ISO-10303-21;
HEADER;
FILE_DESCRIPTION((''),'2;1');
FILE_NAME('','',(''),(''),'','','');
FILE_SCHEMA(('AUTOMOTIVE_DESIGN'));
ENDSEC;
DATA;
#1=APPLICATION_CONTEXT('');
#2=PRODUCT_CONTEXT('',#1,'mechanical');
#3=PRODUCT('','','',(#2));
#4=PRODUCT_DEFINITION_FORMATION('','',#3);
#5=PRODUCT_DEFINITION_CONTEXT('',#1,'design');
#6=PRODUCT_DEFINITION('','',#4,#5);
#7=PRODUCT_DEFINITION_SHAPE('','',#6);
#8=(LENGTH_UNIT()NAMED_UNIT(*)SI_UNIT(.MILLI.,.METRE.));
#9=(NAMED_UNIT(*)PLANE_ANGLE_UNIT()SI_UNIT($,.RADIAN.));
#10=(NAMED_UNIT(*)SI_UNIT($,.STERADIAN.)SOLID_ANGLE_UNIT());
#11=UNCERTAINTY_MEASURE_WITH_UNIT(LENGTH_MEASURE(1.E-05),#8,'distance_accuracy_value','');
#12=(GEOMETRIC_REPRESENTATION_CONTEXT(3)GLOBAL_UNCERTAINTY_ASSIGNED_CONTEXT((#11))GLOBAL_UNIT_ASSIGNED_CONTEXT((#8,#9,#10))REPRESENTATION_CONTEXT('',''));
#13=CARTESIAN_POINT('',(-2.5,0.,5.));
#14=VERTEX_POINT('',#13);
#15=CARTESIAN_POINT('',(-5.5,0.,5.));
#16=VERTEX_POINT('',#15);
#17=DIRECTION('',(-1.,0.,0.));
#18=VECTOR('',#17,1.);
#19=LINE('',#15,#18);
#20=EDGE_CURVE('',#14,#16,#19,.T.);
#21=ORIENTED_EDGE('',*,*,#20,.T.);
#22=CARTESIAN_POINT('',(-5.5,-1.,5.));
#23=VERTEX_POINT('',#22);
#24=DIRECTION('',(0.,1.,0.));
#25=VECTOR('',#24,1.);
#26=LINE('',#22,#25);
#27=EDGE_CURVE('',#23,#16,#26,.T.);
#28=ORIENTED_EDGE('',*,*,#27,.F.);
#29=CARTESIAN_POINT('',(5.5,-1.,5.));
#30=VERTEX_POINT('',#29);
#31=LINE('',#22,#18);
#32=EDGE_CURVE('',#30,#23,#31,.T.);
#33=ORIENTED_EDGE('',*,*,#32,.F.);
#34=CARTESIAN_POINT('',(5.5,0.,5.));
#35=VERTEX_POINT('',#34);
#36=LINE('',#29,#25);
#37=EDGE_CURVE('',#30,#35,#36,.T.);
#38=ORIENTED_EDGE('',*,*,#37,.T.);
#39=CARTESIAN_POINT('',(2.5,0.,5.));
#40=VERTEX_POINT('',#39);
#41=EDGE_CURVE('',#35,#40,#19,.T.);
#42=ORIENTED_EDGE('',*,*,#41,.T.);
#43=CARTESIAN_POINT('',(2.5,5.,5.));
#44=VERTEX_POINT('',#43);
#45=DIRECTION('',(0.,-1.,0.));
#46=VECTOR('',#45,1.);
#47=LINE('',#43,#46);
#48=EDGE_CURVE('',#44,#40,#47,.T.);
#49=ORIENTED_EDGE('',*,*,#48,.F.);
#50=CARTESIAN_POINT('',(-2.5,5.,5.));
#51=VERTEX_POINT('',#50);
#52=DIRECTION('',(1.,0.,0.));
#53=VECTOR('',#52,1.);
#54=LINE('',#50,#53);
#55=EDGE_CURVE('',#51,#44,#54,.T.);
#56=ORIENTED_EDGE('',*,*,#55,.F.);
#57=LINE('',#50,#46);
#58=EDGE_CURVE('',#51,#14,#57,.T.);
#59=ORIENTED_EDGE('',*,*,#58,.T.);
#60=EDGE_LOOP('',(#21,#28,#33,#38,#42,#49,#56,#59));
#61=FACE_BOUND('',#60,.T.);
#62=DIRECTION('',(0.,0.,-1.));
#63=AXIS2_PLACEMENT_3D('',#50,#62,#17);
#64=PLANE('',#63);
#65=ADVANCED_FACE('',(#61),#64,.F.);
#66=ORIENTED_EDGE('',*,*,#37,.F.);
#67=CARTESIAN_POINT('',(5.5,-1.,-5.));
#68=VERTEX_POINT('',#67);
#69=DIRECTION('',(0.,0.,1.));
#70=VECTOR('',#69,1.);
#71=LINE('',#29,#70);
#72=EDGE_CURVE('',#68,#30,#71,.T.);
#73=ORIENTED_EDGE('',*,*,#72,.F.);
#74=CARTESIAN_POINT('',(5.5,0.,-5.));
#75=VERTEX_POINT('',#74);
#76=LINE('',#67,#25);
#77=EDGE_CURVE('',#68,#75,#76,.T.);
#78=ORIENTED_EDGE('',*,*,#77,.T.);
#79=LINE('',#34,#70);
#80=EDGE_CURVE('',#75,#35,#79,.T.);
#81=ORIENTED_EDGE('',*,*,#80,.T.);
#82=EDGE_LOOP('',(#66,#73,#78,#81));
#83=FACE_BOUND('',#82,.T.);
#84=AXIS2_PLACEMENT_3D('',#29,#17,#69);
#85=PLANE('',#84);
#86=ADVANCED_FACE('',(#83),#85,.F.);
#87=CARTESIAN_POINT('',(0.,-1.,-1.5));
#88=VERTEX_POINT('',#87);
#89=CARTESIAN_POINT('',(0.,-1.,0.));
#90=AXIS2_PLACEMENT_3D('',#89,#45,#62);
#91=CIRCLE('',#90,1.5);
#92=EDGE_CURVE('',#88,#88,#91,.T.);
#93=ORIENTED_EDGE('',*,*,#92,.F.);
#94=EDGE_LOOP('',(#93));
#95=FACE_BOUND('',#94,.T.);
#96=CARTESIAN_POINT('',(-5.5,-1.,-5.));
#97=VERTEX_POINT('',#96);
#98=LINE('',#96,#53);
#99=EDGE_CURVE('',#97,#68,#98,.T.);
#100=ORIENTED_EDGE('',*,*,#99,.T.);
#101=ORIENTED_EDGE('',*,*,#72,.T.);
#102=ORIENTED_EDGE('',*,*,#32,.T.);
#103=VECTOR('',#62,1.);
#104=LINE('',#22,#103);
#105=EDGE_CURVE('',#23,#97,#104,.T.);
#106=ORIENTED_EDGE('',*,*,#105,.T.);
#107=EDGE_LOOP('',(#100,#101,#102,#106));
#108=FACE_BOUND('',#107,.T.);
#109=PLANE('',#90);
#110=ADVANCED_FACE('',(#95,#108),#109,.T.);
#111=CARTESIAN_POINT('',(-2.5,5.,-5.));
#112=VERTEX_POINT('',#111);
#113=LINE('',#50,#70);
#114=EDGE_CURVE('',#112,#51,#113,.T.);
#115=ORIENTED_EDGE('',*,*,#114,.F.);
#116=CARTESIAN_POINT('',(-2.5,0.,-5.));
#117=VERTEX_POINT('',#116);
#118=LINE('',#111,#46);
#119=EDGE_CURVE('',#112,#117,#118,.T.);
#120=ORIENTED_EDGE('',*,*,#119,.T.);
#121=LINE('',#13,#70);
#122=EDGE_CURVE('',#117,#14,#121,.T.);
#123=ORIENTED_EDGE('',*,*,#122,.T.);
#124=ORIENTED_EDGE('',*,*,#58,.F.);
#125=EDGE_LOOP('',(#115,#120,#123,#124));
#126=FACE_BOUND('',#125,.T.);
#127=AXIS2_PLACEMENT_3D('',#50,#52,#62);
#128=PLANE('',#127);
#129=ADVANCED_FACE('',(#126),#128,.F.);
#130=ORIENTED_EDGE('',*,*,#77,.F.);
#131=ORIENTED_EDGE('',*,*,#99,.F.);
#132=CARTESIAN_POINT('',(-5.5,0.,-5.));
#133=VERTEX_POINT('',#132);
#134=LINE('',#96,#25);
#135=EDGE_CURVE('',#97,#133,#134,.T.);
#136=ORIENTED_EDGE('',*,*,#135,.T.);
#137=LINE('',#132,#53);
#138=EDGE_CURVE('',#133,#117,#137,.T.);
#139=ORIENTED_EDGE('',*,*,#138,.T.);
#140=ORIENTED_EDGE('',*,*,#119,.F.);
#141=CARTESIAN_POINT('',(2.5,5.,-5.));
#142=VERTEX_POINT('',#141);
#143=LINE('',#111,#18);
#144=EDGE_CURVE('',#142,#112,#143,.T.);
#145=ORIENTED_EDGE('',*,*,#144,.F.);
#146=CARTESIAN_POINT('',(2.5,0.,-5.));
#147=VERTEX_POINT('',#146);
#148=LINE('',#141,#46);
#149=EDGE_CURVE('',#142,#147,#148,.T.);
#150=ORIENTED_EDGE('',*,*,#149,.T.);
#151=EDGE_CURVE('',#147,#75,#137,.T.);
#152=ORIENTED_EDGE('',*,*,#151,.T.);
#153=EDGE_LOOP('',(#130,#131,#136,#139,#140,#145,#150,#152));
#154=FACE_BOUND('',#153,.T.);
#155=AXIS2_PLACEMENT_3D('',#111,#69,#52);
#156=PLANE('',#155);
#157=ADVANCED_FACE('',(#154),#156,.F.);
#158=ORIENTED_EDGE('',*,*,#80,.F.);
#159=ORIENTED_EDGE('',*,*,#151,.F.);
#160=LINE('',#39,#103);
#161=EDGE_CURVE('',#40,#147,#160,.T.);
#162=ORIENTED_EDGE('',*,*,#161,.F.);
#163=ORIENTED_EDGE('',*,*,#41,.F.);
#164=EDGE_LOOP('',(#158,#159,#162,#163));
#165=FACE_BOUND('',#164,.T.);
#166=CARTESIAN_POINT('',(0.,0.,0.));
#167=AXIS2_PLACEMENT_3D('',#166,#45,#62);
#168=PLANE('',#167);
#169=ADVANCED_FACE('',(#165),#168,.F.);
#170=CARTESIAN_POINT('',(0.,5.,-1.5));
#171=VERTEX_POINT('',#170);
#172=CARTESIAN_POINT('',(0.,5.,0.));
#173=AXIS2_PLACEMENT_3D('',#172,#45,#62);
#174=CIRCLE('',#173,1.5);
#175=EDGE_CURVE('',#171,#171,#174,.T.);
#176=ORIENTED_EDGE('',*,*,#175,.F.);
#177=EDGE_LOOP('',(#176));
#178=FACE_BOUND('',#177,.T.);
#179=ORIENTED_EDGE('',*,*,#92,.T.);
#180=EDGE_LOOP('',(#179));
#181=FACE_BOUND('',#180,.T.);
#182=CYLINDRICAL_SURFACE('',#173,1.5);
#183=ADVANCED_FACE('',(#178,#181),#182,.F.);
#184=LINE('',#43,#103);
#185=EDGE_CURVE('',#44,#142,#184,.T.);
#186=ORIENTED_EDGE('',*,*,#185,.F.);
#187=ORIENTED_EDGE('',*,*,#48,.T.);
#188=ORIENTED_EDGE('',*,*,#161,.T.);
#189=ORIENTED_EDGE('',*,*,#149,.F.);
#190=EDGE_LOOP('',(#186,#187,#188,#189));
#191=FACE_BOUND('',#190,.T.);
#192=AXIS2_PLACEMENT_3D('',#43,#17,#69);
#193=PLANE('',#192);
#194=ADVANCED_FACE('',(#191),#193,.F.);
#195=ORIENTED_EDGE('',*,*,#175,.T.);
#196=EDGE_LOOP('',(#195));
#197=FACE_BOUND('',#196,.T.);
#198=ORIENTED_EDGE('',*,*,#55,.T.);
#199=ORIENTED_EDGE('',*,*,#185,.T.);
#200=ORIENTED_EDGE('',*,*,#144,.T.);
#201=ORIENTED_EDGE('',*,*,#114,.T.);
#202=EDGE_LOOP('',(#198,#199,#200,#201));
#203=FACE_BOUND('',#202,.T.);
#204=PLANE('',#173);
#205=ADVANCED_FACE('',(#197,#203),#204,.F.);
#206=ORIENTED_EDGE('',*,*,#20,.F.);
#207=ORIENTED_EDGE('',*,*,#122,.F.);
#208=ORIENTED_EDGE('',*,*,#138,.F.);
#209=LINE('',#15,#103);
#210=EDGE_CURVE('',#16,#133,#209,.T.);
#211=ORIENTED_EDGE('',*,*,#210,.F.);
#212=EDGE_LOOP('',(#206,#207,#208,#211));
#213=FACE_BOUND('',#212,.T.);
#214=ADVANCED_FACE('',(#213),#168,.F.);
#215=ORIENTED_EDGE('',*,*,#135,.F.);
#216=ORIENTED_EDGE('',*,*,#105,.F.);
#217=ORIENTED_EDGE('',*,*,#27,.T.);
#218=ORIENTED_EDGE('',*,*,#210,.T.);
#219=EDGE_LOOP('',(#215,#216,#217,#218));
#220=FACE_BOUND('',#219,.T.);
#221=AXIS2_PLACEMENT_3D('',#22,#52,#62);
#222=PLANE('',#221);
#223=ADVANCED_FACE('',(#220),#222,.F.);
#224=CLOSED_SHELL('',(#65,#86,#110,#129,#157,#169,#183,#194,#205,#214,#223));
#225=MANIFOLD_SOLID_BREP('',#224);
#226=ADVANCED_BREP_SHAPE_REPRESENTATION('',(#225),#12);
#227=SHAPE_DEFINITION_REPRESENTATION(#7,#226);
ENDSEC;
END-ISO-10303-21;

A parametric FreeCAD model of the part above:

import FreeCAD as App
import Part
import Sketcher

doc = App.newDocument("Part")
body = doc.addObject("PartDesign::Body", "Body")

sketch1 = body.newObject("Sketcher::SketchObject", "Sketch")
sketch1.AttachmentSupport = (doc.getObject("XZ_Plane"), [""])
sketch1.MapMode = "FlatFace"
sketch1.addGeometry([
    Part.LineSegment(App.Vector(-2.5, -5, 0), App.Vector(-2.5, 5, 0)),
    Part.LineSegment(App.Vector(-2.5, 5, 0), App.Vector(2.5, 5, 0)),
    Part.LineSegment(App.Vector(2.5, 5, 0), App.Vector(2.5, -5, 0)),
    Part.LineSegment(App.Vector(2.5, -5, 0), App.Vector(-2.5, -5, 0)),
], False)
sketch1.addConstraint([
    Sketcher.Constraint("Coincident", 0, 2, 1, 1),
    Sketcher.Constraint("Coincident", 1, 2, 2, 1),
    Sketcher.Constraint("Coincident", 2, 2, 3, 1),
    Sketcher.Constraint("Coincident", 3, 2, 0, 1),
    Sketcher.Constraint("Vertical", 0),
    Sketcher.Constraint("Horizontal", 1),
    Sketcher.Constraint("Vertical", 2),
    Sketcher.Constraint("Horizontal", 3),
    Sketcher.Constraint("Symmetric", 0, 2, 2, 2, -1, 1),
    Sketcher.Constraint("DistanceX", 1, 1, 1, 2, 5.0),
    Sketcher.Constraint("DistanceY", 0, 1, 0, 2, 10.0),
])
pad1 = body.newObject("PartDesign::Pad", "Pad")
pad1.Profile = sketch1
pad1.Length = 5
pad1.Reversed = True

sketch2 = body.newObject("Sketcher::SketchObject", "Sketch001")
sketch2.AttachmentSupport = (doc.getObject("XZ_Plane"), [""])
sketch2.MapMode = "FlatFace"
sketch2.addGeometry([
    Part.LineSegment(App.Vector(-5.5, 5, 0), App.Vector(-5.5, -5, 0)),
    Part.LineSegment(App.Vector(-5.5, -5, 0), App.Vector(5.5, -5, 0)),
    Part.LineSegment(App.Vector(5.5, -5, 0), App.Vector(5.5, 5, 0)),
    Part.LineSegment(App.Vector(5.5, 5, 0), App.Vector(-5.5, 5, 0)),
], False)
sketch2.addConstraint([
    Sketcher.Constraint("Coincident", 0, 2, 1, 1),
    Sketcher.Constraint("Coincident", 1, 2, 2, 1),
    Sketcher.Constraint("Coincident", 2, 2, 3, 1),
    Sketcher.Constraint("Coincident", 3, 2, 0, 1),
    Sketcher.Constraint("Vertical", 0),
    Sketcher.Constraint("Horizontal", 1),
    Sketcher.Constraint("Vertical", 2),
    Sketcher.Constraint("Horizontal", 3),
    Sketcher.Constraint("Symmetric", 0, 2, 2, 2, -1, 1),
    Sketcher.Constraint("DistanceX", 1, 1, 1, 2, 11.0),
    Sketcher.Constraint("DistanceY", 0, 2, 0, 1, 10.0),
])
pad2 = body.newObject("PartDesign::Pad", "Pad001")
pad2.Profile = sketch2
pad2.Length = 1

sketch3 = body.newObject("Sketcher::SketchObject", "Sketch002")
sketch3.AttachmentSupport = (doc.getObject("XZ_Plane"), [""])
sketch3.MapMode = "FlatFace"
sketch3.AttachmentOffset = App.Placement(App.Vector(0, 0, 1), App.Rotation())
sketch3.addGeometry(Part.Circle(App.Vector(0, 0, 0), App.Vector(0, 0, 1), 1.5), False)
sketch3.addConstraint([
    Sketcher.Constraint("Coincident", 0, 3, -1, 1),
    Sketcher.Constraint("Diameter", 0, 3.0),
])
pocket1 = body.newObject("PartDesign::Pocket", "Pocket")
pocket1.Profile = sketch3
pocket1.Type = "ThroughAll"

doc.recompute()
